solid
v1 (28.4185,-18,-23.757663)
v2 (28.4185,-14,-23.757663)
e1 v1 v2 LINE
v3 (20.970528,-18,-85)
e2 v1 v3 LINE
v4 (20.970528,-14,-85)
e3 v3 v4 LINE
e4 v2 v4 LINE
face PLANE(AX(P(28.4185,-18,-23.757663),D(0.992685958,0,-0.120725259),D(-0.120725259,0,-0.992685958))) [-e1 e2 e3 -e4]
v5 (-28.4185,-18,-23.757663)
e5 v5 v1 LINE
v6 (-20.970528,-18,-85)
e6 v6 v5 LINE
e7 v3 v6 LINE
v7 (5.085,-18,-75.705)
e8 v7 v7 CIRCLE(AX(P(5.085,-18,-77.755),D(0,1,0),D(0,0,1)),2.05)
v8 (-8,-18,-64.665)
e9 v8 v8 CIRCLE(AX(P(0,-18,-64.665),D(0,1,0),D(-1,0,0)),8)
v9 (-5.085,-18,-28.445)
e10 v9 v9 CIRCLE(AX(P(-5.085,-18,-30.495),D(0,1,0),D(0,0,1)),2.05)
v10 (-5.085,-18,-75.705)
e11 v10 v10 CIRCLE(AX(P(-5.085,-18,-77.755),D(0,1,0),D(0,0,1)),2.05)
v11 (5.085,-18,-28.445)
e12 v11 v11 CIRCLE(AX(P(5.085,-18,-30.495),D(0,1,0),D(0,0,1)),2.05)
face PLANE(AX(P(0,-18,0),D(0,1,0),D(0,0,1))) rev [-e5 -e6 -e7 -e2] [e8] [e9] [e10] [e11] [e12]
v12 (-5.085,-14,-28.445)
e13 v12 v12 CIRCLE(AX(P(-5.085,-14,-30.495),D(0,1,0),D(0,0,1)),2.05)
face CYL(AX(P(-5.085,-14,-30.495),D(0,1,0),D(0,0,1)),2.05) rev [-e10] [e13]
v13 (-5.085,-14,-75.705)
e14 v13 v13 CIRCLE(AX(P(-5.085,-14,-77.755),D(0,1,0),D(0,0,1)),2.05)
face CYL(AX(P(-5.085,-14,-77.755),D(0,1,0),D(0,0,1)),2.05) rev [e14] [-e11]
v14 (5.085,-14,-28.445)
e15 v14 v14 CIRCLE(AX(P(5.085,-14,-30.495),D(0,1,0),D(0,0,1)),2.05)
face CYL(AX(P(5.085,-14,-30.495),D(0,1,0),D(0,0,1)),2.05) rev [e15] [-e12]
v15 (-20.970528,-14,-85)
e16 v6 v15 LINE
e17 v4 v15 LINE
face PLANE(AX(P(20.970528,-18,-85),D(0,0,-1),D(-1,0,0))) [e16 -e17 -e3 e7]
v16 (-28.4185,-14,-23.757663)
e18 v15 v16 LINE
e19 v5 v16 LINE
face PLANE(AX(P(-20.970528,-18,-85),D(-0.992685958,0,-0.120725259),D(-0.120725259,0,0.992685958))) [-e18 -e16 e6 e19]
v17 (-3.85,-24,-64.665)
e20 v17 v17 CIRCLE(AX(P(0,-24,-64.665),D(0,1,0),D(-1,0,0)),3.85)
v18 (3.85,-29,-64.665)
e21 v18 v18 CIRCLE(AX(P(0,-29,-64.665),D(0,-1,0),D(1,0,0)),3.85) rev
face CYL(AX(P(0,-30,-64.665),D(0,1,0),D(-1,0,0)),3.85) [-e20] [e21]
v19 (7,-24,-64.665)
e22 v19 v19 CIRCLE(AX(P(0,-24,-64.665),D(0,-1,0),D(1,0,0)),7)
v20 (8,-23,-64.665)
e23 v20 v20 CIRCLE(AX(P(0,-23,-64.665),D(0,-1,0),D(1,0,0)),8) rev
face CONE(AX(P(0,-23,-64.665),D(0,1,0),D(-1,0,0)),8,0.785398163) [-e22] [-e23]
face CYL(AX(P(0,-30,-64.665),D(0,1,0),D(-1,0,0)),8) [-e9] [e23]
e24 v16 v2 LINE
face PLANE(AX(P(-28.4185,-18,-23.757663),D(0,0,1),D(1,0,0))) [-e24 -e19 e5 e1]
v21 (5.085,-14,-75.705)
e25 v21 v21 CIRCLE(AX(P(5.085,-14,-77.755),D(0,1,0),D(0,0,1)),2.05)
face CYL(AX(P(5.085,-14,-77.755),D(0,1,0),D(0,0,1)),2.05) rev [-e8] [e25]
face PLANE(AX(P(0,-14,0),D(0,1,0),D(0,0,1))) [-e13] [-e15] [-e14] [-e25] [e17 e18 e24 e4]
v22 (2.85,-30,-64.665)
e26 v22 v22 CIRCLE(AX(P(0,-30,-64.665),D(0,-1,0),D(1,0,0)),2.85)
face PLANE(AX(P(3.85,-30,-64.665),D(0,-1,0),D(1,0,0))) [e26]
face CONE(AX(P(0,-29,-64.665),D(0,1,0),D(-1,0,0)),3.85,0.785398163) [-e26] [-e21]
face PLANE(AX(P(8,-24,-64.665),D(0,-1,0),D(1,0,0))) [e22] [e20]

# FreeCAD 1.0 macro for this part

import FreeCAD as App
import Part
import Sketcher
from FreeCAD import Vector
Q = App.Units.Quantity


def edges_at(feature, points):
    """Names of the edges that pass closest to the given points."""
    edges = feature.Shape.Edges
    near = lambda p: min(range(len(edges)), key=lambda i: edges[i].distToShape(Part.Vertex(*p))[0])
    return sorted({f"Edge{near(p) + 1}" for p in points})

doc = App.newDocument("Part")
body = doc.addObject("PartDesign::Body", "Body")

sketch1 = body.newObject("Sketcher::SketchObject", "Sketch")
sketch1.AttachmentSupport = (doc.getObject("XZ_Plane"), [""])
sketch1.MapMode = "FlatFace"
sketch1.AttachmentOffset = App.Placement(Vector(0, 0, 14), App.Rotation())
sketch1.addGeometry(Part.LineSegment(Vector(-28, -24, 0), Vector(28, -24, 0)), False)
sketch1.addGeometry(Part.LineSegment(Vector(28, -24, 0), Vector(21, -85, 0)), False)
sketch1.addGeometry(Part.LineSegment(Vector(21, -85, 0), Vector(-21, -85, 0)), False)
sketch1.addGeometry(Part.LineSegment(Vector(-21, -85, 0), Vector(-28, -24, 0)), False)
sketch1.addConstraint(Sketcher.Constraint("Coincident", 0, 2, 1, 1))
sketch1.addConstraint(Sketcher.Constraint("Coincident", 1, 2, 2, 1))
sketch1.addConstraint(Sketcher.Constraint("Coincident", 2, 2, 3, 1))
sketch1.addConstraint(Sketcher.Constraint("Coincident", 3, 2, 0, 1))
sketch1.addConstraint(Sketcher.Constraint("Horizontal", 0))
sketch1.addConstraint(Sketcher.Constraint("Horizontal", 2))
sketch1.addConstraint(Sketcher.Constraint("Equal", 1, 3))
sketch1.addConstraint(Sketcher.Constraint("DistanceY", 1, 2, -1, 1, Q("85 mm")))
sketch1.addConstraint(Sketcher.Constraint("DistanceX", 0, 1, 0, 2, Q("56.837 mm")))
sketch1.addConstraint(Sketcher.Constraint("DistanceX", -1, 1, 0, 2, Q("28.4185 mm")))
sketch1.addConstraint(Sketcher.Constraint("DistanceX", 2, 2, 2, 1, Q("41.941057 mm")))
sketch1.addConstraint(Sketcher.Constraint("Distance", 1, Q("61.693566 mm")))
pad1 = body.newObject("PartDesign::Pad", "Pad")
pad1.Profile = sketch1
pad1.Length = 4

sketch2 = body.newObject("Sketcher::SketchObject", "Sketch001")
sketch2.AttachmentSupport = (doc.getObject("XY_Plane"), [""])
sketch2.MapMode = "FlatFace"
sketch2.AttachmentOffset = App.Placement(Vector(0, 0, -64.665), App.Rotation())
sketch2.addGeometry(Part.LineSegment(Vector(3.9, -30, 0), Vector(0, -30, 0)), False)
sketch2.addGeometry(Part.LineSegment(Vector(0, -30, 0), Vector(0, -18, 0)), False)
sketch2.addGeometry(Part.LineSegment(Vector(0, -18, 0), Vector(8, -18, 0)), False)
sketch2.addGeometry(Part.LineSegment(Vector(8, -18, 0), Vector(8, -24, 0)), False)
sketch2.addGeometry(Part.LineSegment(Vector(8, -24, 0), Vector(3.9, -24, 0)), False)
sketch2.addGeometry(Part.LineSegment(Vector(3.9, -24, 0), Vector(3.9, -30, 0)), False)
sketch2.addConstraint(Sketcher.Constraint("Coincident", 0, 2, 1, 1))
sketch2.addConstraint(Sketcher.Constraint("Coincident", 1, 2, 2, 1))
sketch2.addConstraint(Sketcher.Constraint("Coincident", 2, 2, 3, 1))
sketch2.addConstraint(Sketcher.Constraint("Coincident", 3, 2, 4, 1))
sketch2.addConstraint(Sketcher.Constraint("Coincident", 4, 2, 5, 1))
sketch2.addConstraint(Sketcher.Constraint("Coincident", 5, 2, 0, 1))
sketch2.addConstraint(Sketcher.Constraint("Horizontal", 0))
sketch2.addConstraint(Sketcher.Constraint("Vertical", 1))
sketch2.addConstraint(Sketcher.Constraint("Horizontal", 2))
sketch2.addConstraint(Sketcher.Constraint("Vertical", 3))
sketch2.addConstraint(Sketcher.Constraint("Horizontal", 4))
sketch2.addConstraint(Sketcher.Constraint("Vertical", 5))
sketch2.addConstraint(Sketcher.Constraint("PointOnObject", 0, 2, -2))
sketch2.addConstraint(Sketcher.Constraint("Equal", 3, 5))
sketch2.addConstraint(Sketcher.Constraint("DistanceX", 2, 1, 2, 2, Q("8 mm")))
sketch2.addConstraint(Sketcher.Constraint("DistanceY", 1, 1, 1, 2, Q("12 mm")))
sketch2.addConstraint(Sketcher.Constraint("DistanceY", 0, 2, -1, 1, Q("30 mm")))
sketch2.addConstraint(Sketcher.Constraint("DistanceX", 0, 2, 0, 1, Q("3.85 mm")))
revolution = body.newObject("PartDesign::Revolution", "Revolution")
revolution.Profile = sketch2
revolution.ReferenceAxis = (sketch2, ["V_Axis"])
revolution.Angle = 360

sketch3 = body.newObject("Sketcher::SketchObject", "Sketch002")
sketch3.AttachmentSupport = (doc.getObject("XZ_Plane"), [""])
sketch3.MapMode = "FlatFace"
sketch3.AttachmentOffset = App.Placement(Vector(0, 0, 14), App.Rotation())
sketch3.addGeometry(Part.Circle(Vector(-5.1, -30.5, 0), Vector(0, 0, 1), 2), False)
sketch3.addGeometry(Part.Circle(Vector(5.1, -30.5, 0), Vector(0, 0, 1), 2), False)
sketch3.addGeometry(Part.Circle(Vector(5.1, -77.8, 0), Vector(0, 0, 1), 2), False)
sketch3.addGeometry(Part.Circle(Vector(-5.1, -77.8, 0), Vector(0, 0, 1), 2), False)
sketch3.addConstraint(Sketcher.Constraint("Equal", 0, 1))
sketch3.addConstraint(Sketcher.Constraint("Equal", 1, 2))
sketch3.addConstraint(Sketcher.Constraint("Equal", 2, 3))
sketch3.addConstraint(Sketcher.Constraint("Symmetric", 0, 3, 1, 3, -2))
sketch3.addConstraint(Sketcher.Constraint("Symmetric", 2, 3, 3, 3, -2))
sketch3.addConstraint(Sketcher.Constraint("Vertical", 1, 3, 2, 3))
sketch3.addConstraint(Sketcher.Constraint("Diameter", 0, Q("4.1 mm")))
sketch3.addConstraint(Sketcher.Constraint("DistanceX", 0, 3, 1, 3, Q("10.17 mm")))
sketch3.addConstraint(Sketcher.Constraint("DistanceY", 2, 3, 1, 3, Q("47.26 mm")))
sketch3.addConstraint(Sketcher.Constraint("DistanceY", 0, 3, -1, 1, Q("30.495 mm")))
doc.recompute()
hole = body.newObject("PartDesign::Hole", "Hole")
hole.Profile = sketch3
hole.ThreadType = "None"
hole.Diameter = 4.1
hole.DepthType = "Dimension"
hole.Depth = 16
hole.DrillPoint = "Flat"
hole.Reversed = True
doc.recompute()

chamfer = body.newObject("PartDesign::Chamfer", "Chamfer")
chamfer.Base = (hole, edges_at(hole, [(3.85, -30, -64.665), (8, -24, -64.665)]))
chamfer.Size = 1

doc.recompute()
